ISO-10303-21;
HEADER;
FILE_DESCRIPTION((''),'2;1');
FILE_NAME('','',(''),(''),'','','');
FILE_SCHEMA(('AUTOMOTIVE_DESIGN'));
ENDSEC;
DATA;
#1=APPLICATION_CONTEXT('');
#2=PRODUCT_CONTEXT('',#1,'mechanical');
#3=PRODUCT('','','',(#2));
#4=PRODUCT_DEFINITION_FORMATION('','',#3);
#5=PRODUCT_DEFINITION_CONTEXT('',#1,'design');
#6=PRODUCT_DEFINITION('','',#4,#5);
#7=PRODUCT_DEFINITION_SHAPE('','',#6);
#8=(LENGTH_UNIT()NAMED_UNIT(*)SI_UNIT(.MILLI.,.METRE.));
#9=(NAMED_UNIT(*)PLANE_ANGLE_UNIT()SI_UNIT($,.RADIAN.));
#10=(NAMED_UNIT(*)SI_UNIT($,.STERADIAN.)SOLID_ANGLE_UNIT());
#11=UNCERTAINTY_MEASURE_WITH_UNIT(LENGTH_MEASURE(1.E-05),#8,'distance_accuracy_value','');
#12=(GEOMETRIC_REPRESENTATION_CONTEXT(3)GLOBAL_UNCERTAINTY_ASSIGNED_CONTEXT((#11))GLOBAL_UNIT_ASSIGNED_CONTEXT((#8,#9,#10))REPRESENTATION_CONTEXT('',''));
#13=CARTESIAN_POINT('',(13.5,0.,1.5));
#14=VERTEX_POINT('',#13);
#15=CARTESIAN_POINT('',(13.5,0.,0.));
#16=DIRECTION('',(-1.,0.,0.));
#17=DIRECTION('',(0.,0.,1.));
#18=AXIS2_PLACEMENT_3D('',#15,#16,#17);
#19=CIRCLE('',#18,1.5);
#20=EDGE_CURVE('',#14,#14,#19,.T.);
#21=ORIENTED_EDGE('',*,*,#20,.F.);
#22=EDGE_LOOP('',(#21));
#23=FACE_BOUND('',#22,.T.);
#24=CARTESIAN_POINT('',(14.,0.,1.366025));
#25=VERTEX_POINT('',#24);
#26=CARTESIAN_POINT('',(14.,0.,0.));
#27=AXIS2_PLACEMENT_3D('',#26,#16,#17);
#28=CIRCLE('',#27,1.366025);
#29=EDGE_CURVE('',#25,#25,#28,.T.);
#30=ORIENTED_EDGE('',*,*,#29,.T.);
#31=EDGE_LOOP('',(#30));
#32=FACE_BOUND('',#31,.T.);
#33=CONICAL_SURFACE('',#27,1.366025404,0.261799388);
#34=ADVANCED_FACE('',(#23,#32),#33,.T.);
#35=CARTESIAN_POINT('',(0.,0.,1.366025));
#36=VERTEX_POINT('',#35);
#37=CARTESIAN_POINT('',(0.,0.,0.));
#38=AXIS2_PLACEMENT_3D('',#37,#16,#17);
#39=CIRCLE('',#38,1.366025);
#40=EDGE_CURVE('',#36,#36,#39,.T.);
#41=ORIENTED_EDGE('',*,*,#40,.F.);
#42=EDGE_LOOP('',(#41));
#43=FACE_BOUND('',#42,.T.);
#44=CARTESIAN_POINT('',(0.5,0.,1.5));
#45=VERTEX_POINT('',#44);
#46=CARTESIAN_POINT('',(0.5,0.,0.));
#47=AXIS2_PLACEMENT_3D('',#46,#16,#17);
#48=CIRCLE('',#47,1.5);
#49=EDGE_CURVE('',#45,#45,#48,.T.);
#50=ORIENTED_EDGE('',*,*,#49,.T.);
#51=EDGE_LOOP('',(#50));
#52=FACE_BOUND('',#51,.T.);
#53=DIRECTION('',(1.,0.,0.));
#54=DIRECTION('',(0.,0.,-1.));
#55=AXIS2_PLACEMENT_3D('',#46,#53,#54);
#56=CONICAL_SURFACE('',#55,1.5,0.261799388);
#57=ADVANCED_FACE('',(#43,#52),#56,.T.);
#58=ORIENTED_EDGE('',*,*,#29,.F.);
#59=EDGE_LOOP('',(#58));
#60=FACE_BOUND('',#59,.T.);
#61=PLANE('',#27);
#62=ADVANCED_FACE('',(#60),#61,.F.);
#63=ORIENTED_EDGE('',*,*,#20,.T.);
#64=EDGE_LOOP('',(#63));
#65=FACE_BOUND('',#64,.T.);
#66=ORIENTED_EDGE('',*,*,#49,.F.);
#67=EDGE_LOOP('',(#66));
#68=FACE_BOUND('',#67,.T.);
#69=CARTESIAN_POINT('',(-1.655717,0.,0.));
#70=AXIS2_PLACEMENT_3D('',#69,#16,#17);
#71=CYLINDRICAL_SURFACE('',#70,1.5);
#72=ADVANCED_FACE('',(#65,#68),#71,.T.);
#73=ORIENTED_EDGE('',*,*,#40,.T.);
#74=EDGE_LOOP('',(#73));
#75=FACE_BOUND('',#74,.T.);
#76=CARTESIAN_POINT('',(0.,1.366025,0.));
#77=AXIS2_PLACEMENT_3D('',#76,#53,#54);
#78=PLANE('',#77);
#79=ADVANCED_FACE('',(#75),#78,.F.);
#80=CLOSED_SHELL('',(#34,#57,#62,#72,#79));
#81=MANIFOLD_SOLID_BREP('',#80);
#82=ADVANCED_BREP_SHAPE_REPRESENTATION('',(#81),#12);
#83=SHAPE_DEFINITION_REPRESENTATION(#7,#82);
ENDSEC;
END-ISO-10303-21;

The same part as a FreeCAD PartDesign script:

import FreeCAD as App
import Part
import Sketcher
Q = App.Units.Quantity


def add_polygon(sketch, points):
    """Adds a closed chain of lines whose ends are joined by coincident constraints."""
    first, n = sketch.GeometryCount, len(points)
    for a, b in zip(points, points[1:] + points[:1]):
        sketch.addGeometry(Part.LineSegment(App.Vector(*a, 0), App.Vector(*b, 0)), False)
    for i in range(n):
        sketch.addConstraint(Sketcher.Constraint("Coincident", first + i, 2, first + (i + 1) % n, 1))

doc = App.newDocument("Part")
body = doc.addObject("PartDesign::Body", "Body")

# Sketch on XY plane
sketch1 = body.newObject("Sketcher::SketchObject", "Sketch")
sketch1.AttachmentSupport = (doc.getObject("XY_Plane"), [""])
sketch1.MapMode = "FlatFace"
add_polygon(sketch1, [(0, 0), (14, 0), (14, 1.4), (13.5, 1.5), (0.5, 1.5), (0, 1.4)])  # lines 0-5
sketch1.addConstraint(Sketcher.Constraint("Horizontal", 0))
sketch1.addConstraint(Sketcher.Constraint("Vertical", 1))
sketch1.addConstraint(Sketcher.Constraint("Horizontal", 3))
sketch1.addConstraint(Sketcher.Constraint("Vertical", 5))
sketch1.addConstraint(Sketcher.Constraint("Coincident", 5, 2, -1, 1))
sketch1.addConstraint(Sketcher.Constraint("Horizontal", 1, 2, 4, 2))
sketch1.addConstraint(Sketcher.Constraint("Equal", 2, 4))
sketch1.addConstraint(Sketcher.Constraint("DistanceX", 0, 1, 0, 2, Q("14 mm")))
sketch1.addConstraint(Sketcher.Constraint("DistanceX", 3, 2, 3, 1, Q("13 mm")))
sketch1.addConstraint(Sketcher.Constraint("Angle", 2, Q("165 deg")))
sketch1.addConstraint(Sketcher.Constraint("DistanceY", -1, 1, 2, 2, Q("1.5 mm")))
revolution = body.newObject("PartDesign::Revolution", "Revolution")
revolution.Profile = sketch1
revolution.ReferenceAxis = (sketch1, ["H_Axis"])
revolution.Angle = 360

doc.recompute()
